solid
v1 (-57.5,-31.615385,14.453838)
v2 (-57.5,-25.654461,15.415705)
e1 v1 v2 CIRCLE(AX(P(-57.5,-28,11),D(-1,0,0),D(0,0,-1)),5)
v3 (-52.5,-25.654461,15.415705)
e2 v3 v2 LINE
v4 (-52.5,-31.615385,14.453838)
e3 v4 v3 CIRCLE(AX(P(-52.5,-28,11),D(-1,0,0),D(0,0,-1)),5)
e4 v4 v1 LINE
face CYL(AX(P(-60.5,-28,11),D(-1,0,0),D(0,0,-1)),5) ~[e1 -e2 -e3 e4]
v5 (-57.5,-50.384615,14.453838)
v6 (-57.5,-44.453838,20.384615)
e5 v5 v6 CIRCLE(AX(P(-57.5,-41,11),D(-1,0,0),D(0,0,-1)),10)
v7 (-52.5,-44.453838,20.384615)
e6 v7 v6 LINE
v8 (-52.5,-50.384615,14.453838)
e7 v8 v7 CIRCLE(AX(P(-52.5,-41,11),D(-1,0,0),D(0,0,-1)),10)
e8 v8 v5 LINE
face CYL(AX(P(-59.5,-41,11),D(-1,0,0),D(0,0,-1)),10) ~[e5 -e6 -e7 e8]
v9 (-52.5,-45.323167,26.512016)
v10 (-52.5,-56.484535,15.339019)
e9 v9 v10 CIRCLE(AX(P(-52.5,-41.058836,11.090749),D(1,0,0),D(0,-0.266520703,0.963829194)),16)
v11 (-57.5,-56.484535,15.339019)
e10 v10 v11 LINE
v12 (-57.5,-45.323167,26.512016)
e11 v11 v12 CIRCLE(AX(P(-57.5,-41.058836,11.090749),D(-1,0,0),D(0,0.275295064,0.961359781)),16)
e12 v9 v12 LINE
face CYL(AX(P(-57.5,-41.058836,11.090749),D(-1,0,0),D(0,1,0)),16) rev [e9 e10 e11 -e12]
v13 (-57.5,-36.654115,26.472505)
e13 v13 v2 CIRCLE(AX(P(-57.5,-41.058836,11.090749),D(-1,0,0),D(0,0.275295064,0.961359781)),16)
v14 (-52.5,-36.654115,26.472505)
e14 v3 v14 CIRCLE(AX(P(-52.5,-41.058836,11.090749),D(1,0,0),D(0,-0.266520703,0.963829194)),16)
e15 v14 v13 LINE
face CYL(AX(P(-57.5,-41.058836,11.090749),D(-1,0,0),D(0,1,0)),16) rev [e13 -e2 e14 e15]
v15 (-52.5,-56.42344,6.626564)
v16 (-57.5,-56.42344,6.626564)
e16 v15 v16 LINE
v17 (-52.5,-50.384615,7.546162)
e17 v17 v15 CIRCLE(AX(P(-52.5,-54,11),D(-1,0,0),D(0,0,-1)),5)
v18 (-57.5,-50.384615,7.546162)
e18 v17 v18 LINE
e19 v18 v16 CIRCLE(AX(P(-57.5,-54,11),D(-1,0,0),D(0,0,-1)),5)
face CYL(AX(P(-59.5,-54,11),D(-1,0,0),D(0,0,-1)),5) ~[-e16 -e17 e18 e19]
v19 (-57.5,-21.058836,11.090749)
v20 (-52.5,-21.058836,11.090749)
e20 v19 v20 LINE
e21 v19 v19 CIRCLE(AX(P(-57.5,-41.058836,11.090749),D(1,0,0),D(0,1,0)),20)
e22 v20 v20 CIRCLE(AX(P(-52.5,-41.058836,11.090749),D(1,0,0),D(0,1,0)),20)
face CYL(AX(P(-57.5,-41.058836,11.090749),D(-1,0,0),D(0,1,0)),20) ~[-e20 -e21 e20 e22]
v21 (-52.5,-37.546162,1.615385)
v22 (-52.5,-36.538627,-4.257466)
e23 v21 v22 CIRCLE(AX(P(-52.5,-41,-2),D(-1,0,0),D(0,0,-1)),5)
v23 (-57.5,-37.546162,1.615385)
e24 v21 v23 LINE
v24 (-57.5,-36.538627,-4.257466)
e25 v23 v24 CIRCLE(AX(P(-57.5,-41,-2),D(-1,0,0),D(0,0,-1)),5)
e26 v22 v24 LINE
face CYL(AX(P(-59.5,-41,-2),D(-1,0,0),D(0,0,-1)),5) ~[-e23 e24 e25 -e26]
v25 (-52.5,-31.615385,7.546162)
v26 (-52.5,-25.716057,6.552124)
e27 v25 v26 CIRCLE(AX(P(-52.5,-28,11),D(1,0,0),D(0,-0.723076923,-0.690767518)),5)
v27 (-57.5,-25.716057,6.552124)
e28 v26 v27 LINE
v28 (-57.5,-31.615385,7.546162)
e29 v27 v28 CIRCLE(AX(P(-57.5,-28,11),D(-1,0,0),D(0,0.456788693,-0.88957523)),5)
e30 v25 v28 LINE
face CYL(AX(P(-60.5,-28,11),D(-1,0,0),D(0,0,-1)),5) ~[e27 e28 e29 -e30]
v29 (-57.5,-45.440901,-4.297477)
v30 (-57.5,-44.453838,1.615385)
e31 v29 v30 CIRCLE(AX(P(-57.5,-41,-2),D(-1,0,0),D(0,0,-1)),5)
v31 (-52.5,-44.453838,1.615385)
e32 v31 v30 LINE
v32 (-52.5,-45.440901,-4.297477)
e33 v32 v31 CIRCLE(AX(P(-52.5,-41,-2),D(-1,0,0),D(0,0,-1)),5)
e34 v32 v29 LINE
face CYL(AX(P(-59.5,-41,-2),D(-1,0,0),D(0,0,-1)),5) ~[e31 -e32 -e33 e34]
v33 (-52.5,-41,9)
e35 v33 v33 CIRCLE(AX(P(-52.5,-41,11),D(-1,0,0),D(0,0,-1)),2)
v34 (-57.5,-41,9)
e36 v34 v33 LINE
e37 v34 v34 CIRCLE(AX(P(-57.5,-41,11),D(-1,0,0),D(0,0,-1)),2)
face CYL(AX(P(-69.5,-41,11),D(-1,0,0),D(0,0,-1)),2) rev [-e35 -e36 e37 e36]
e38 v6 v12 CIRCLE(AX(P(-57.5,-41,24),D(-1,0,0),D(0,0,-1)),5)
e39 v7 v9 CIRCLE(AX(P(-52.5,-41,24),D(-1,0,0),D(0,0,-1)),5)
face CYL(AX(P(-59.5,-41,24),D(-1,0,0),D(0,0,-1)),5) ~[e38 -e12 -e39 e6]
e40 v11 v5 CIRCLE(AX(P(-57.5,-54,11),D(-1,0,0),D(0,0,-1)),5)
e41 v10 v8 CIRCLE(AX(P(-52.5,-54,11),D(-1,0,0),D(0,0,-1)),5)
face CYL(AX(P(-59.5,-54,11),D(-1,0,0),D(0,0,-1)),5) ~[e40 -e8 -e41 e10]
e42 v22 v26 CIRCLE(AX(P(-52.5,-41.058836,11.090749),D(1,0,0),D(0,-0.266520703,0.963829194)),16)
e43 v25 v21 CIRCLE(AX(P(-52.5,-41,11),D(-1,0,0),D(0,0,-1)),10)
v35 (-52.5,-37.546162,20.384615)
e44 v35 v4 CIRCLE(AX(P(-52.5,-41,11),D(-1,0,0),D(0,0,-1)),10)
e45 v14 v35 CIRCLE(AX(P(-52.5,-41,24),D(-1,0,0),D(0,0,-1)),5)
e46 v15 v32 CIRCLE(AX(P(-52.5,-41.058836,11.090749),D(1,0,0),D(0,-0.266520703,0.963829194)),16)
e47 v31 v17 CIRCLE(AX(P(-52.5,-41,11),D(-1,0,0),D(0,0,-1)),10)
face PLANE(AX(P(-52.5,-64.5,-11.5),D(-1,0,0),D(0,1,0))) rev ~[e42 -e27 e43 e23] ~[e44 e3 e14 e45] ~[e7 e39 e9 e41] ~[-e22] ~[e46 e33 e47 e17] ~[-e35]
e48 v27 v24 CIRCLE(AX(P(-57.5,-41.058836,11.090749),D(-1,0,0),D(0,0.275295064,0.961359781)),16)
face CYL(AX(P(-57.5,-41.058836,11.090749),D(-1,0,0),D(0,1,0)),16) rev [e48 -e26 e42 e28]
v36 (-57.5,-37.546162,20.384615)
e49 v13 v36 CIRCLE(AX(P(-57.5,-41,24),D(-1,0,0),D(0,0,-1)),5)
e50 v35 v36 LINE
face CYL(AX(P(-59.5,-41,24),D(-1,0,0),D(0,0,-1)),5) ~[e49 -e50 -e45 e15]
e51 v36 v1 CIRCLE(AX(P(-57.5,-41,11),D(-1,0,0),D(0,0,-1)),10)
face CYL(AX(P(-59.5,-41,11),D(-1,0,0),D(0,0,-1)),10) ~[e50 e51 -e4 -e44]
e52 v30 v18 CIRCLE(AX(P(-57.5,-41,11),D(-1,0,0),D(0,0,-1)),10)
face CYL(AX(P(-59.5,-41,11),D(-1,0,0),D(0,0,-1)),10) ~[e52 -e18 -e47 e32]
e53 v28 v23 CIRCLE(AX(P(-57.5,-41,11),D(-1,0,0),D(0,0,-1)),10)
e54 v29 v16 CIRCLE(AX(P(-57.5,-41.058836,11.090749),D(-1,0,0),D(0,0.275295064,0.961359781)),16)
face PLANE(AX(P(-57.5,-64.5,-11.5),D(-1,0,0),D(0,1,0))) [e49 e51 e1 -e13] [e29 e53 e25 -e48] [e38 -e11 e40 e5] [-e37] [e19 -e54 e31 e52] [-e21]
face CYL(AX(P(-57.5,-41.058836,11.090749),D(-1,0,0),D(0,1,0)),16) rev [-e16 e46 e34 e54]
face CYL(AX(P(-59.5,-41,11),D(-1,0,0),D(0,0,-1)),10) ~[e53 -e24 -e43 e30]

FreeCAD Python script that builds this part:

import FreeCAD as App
import Part
import Sketcher


def add_polygon(sketch, points):
    """Adds a closed chain of lines whose ends are joined by coincident constraints."""
    first, n = sketch.GeometryCount, len(points)
    for a, b in zip(points, points[1:] + points[:1]):
        sketch.addGeometry(Part.LineSegment(App.Vector(*a, 0), App.Vector(*b, 0)), False)
    for i in range(n):
        sketch.addConstraint(Sketcher.Constraint("Coincident", first + i, 2, first + (i + 1) % n, 1))

doc = App.newDocument("Part")
body = doc.addObject("PartDesign::Body", "Body")

# Sketch on XY plane
sketch1 = body.newObject("Sketcher::SketchObject", "Sketch")
sketch1.AttachmentSupport = (doc.getObject("XY_Plane"), [""])
sketch1.MapMode = "FlatFace"
sketch1.AttachmentOffset = App.Placement(App.Vector(0, 0, -57), App.Rotation())
add_polygon(sketch1, [(-10, -9), (-10, -54), (0, -54), (0, -9)])  # lines 0-3
sketch1.addConstraint([
    Sketcher.Constraint("Vertical", 0),
    Sketcher.Constraint("Horizontal", 1),
    Sketcher.Constraint("Vertical", 2),
    Sketcher.Constraint("Horizontal", 3),
    Sketcher.Constraint("PointOnObject", 1, 2, -2),
    Sketcher.Constraint("DistanceX", 1, 1, 1, 2, 10.0),
    Sketcher.Constraint("DistanceY", 0, 2, 0, 1, 45.0),
    Sketcher.Constraint("DistanceY", 0, 2, -1, 1, 54.0),
])
pad1 = body.newObject("PartDesign::Pad", "Pad")
pad1.Profile = sketch1
pad1.Length = 45
body2 = doc.addObject("PartDesign::Body", "Body001")

# Sketch on XY plane
sketch2 = body2.newObject("Sketcher::SketchObject", "Sketch001")
sketch2.AttachmentSupport = (doc.getObject("XY_Plane001"), [""])
sketch2.MapMode = "FlatFace"
sketch2.AttachmentOffset = App.Placement(App.Vector(0, 0, -57), App.Rotation())
add_polygon(sketch2, [(5, -9), (5, -54), (15, -54), (15, -9)])  # lines 0-3
sketch2.addConstraint([
    Sketcher.Constraint("Vertical", 0),
    Sketcher.Constraint("Horizontal", 1),
    Sketcher.Constraint("Vertical", 2),
    Sketcher.Constraint("Horizontal", 3),
    Sketcher.Constraint("DistanceX", 1, 1, 1, 2, 10.0),
    Sketcher.Constraint("DistanceY", 0, 2, 0, 1, 45.0),
    Sketcher.Constraint("DistanceX", -1, 1, 0, 2, 5.0),
    Sketcher.Constraint("DistanceY", 0, 2, -1, 1, 54.0),
])
pad2 = body2.newObject("PartDesign::Pad", "Pad001")
pad2.Profile = sketch2
pad2.Length = 45
body3 = doc.addObject("PartDesign::Body", "Body002")

# Sketch on XY plane
sketch3 = body3.newObject("Sketcher::SketchObject", "Sketch002")
sketch3.AttachmentSupport = (doc.getObject("XY_Plane002"), [""])
sketch3.MapMode = "FlatFace"
sketch3.addGeometry(Part.Circle(App.Vector(0, 0, 0), App.Vector(0, 0, 1), 5), False)
sketch3.addConstraint([
    Sketcher.Constraint("Coincident", 0, 3, -1, 1),
    Sketcher.Constraint("Diameter", 0, 10.0),
])
pad3 = body3.newObject("PartDesign::Pad", "Pad002")
pad3.Profile = sketch3
pad3.Length = 10
body4 = doc.addObject("PartDesign::Body", "Body003")
doc.recompute()

body3.Placement = App.Placement(App.Vector(0, 0, 0), App.Rotation(App.Vector(0, 1, 0), 90))
boolean = body4.newObject("PartDesign::Boolean", "Boolean")
boolean.Type = "Fuse"
boolean.addObjects([body3])
body5 = doc.addObject("PartDesign::Body", "Body004")
doc.recompute()

body4.Placement = App.Placement(App.Vector(-2, -30.5, -21.5), App.Rotation(App.Vector(0, 0, 1), 0))
boolean2 = body5.newObject("PartDesign::Boolean", "Boolean001")
boolean2.Type = "Fuse"
boolean2.addObjects([body4])
body6 = doc.addObject("PartDesign::Body", "Body005")

# Sketch on YZ plane
sketch4 = body6.newObject("Sketcher::SketchObject", "Sketch003")
sketch4.AttachmentSupport = (doc.getObject("YZ_Plane005"), [""])
sketch4.MapMode = "FlatFace"
sketch4.addGeometry([
    Part.Circle(App.Vector(-30.558836, -34.409251, 0), App.Vector(0, 0, 1), 20),
    Part.Circle(App.Vector(-30.558836, -34.409251, 0), App.Vector(0, 0, 1), 16),
], False)
sketch4.addConstraint([
    Sketcher.Constraint("Coincident", 1, 3, 0, 3),
    Sketcher.Constraint("Diameter", 0, 40.0),
    Sketcher.Constraint("Diameter", 1, 32.0),
    Sketcher.Constraint("DistanceY", 0, 3, -1, 1, 34.409251),
    Sketcher.Constraint("DistanceX", 0, 3, -1, 1, 30.558836),
])
pad4 = body6.newObject("PartDesign::Pad", "Pad003")
pad4.Profile = sketch4
pad4.Length = 5
doc.recompute()

boolean3 = body6.newObject("PartDesign::Boolean", "Boolean002")
boolean3.Type = "Fuse"
boolean3.addObjects([body5])
body7 = doc.addObject("PartDesign::Body", "Body006")

# Sketch on XY plane
sketch5 = body7.newObject("Sketcher::SketchObject", "Sketch004")
sketch5.AttachmentSupport = (doc.getObject("XY_Plane006"), [""])
sketch5.MapMode = "FlatFace"
sketch5.addGeometry(Part.Circle(App.Vector(0, 0, 0), App.Vector(0, 0, 1), 5), False)
sketch5.addConstraint([
    Sketcher.Constraint("Coincident", 0, 3, -1, 1),
    Sketcher.Constraint("Diameter", 0, 10.0),
])
pad5 = body7.newObject("PartDesign::Pad", "Pad004")
pad5.Profile = sketch5
pad5.Length = 10
body8 = doc.addObject("PartDesign::Body", "Body007")
doc.recompute()

body7.Placement = App.Placement(App.Vector(0, 0, 0), App.Rotation(App.Vector(0, 1, 0), 90))
boolean4 = body8.newObject("PartDesign::Boolean", "Boolean003")
boolean4.Type = "Fuse"
boolean4.addObjects([body7])
body9 = doc.addObject("PartDesign::Body", "Body008")
doc.recompute()

body8.Placement = App.Placement(App.Vector(-2, -43.5, -34.5), App.Rotation(App.Vector(0, 0, 1), 0))
boolean5 = body9.newObject("PartDesign::Boolean", "Boolean004")
boolean5.Type = "Fuse"
boolean5.addObjects([body8])
doc.recompute()

boolean6 = body9.newObject("PartDesign::Boolean", "Boolean005")
boolean6.Type = "Fuse"
boolean6.addObjects([body6])
body10 = doc.addObject("PartDesign::Body", "Body009")

# Sketch on XY plane
sketch6 = body10.newObject("Sketcher::SketchObject", "Sketch005")
sketch6.AttachmentSupport = (doc.getObject("XY_Plane009"), [""])
sketch6.MapMode = "FlatFace"
sketch6.addGeometry(Part.Circle(App.Vector(0, 0, 0), App.Vector(0, 0, 1), 5), False)
sketch6.addConstraint([
    Sketcher.Constraint("Coincident", 0, 3, -1, 1),
    Sketcher.Constraint("Diameter", 0, 10.0),
])
pad6 = body10.newObject("PartDesign::Pad", "Pad005")
pad6.Profile = sketch6
pad6.Length = 10
body11 = doc.addObject("PartDesign::Body", "Body010")
doc.recompute()

body10.Placement = App.Placement(App.Vector(0, 0, 0), App.Rotation(App.Vector(0, 1, 0), 90))
boolean7 = body11.newObject("PartDesign::Boolean", "Boolean006")
boolean7.Type = "Fuse"
boolean7.addObjects([body10])
body12 = doc.addObject("PartDesign::Body", "Body011")
doc.recompute()

body11.Placement = App.Placement(App.Vector(-2, -30.5, -47.5), App.Rotation(App.Vector(0, 0, 1), 0))
boolean8 = body12.newObject("PartDesign::Boolean", "Boolean007")
boolean8.Type = "Fuse"
boolean8.addObjects([body11])
doc.recompute()

boolean9 = body12.newObject("PartDesign::Boolean", "Boolean008")
boolean9.Type = "Fuse"
boolean9.addObjects([body9])
body13 = doc.addObject("PartDesign::Body", "Body012")

# Sketch on XY plane
sketch7 = body13.newObject("Sketcher::SketchObject", "Sketch006")
sketch7.AttachmentSupport = (doc.getObject("XY_Plane012"), [""])
sketch7.MapMode = "FlatFace"
sketch7.addGeometry(Part.Circle(App.Vector(0, 0, 0), App.Vector(0, 0, 1), 5), False)
sketch7.addConstraint([
    Sketcher.Constraint("Coincident", 0, 3, -1, 1),
    Sketcher.Constraint("Diameter", 0, 10.0),
])
pad7 = body13.newObject("PartDesign::Pad", "Pad006")
pad7.Profile = sketch7
pad7.Length = 10
body14 = doc.addObject("PartDesign::Body", "Body013")
doc.recompute()

body13.Placement = App.Placement(App.Vector(0, 0, 0), App.Rotation(App.Vector(0, 1, 0), 90))
boolean10 = body14.newObject("PartDesign::Boolean", "Boolean009")
boolean10.Type = "Fuse"
boolean10.addObjects([body13])
body15 = doc.addObject("PartDesign::Body", "Body014")
doc.recompute()

body14.Placement = App.Placement(App.Vector(-3, -17.5, -34.5), App.Rotation(App.Vector(0, 0, 1), 0))
boolean11 = body15.newObject("PartDesign::Boolean", "Boolean010")
boolean11.Type = "Fuse"
boolean11.addObjects([body14])
doc.recompute()

boolean12 = body15.newObject("PartDesign::Boolean", "Boolean011")
boolean12.Type = "Fuse"
boolean12.addObjects([body12])
body16 = doc.addObject("PartDesign::Body", "Body015")

# Sketch on XY plane
sketch8 = body16.newObject("Sketcher::SketchObject", "Sketch007")
sketch8.AttachmentSupport = (doc.getObject("XY_Plane015"), [""])
sketch8.MapMode = "FlatFace"
sketch8.addGeometry(Part.Circle(App.Vector(0, 0, 0), App.Vector(0, 0, 1), 2), False)
sketch8.addConstraint([
    Sketcher.Constraint("Coincident", 0, 3, -1, 1),
    Sketcher.Constraint("Diameter", 0, 4.0),
])
pad8 = body16.newObject("PartDesign::Pad", "Pad007")
pad8.Profile = sketch8
pad8.Length = 30
body17 = doc.addObject("PartDesign::Body", "Body016")
doc.recompute()

body16.Placement = App.Placement(App.Vector(0, 0, 0), App.Rotation(App.Vector(0, 1, 0), 90))
boolean13 = body17.newObject("PartDesign::Boolean", "Boolean012")
boolean13.Type = "Fuse"
boolean13.addObjects([body16])
body18 = doc.addObject("PartDesign::Body", "Body017")
doc.recompute()

body17.Placement = App.Placement(App.Vector(-12, -30.5, -34.5), App.Rotation(App.Vector(0, 0, 1), 0))
boolean14 = body18.newObject("PartDesign::Boolean", "Boolean013")
boolean14.Type = "Fuse"
boolean14.addObjects([body17])
body19 = doc.addObject("PartDesign::Body", "Body018")

# Sketch on XY plane
sketch9 = body19.newObject("Sketcher::SketchObject", "Sketch008")
sketch9.AttachmentSupport = (doc.getObject("XY_Plane018"), [""])
sketch9.MapMode = "FlatFace"
sketch9.addGeometry(Part.Circle(App.Vector(0, 0, 0), App.Vector(0, 0, 1), 10), False)
sketch9.addConstraint([
    Sketcher.Constraint("Coincident", 0, 3, -1, 1),
    Sketcher.Constraint("Diameter", 0, 20.0),
])
pad9 = body19.newObject("PartDesign::Pad", "Pad008")
pad9.Profile = sketch9
pad9.Length = 10
body20 = doc.addObject("PartDesign::Body", "Body019")
doc.recompute()

body19.Placement = App.Placement(App.Vector(0, 0, 0), App.Rotation(App.Vector(0, 1, 0), 90))
boolean15 = body20.newObject("PartDesign::Boolean", "Boolean014")
boolean15.Type = "Fuse"
boolean15.addObjects([body19])
body21 = doc.addObject("PartDesign::Body", "Body020")
doc.recompute()

body20.Placement = App.Placement(App.Vector(-2, -30.5, -34.5), App.Rotation(App.Vector(0, 0, 1), 0))
boolean16 = body21.newObject("PartDesign::Boolean", "Boolean015")
boolean16.Type = "Fuse"
boolean16.addObjects([body20])
doc.recompute()

boolean17 = body21.newObject("PartDesign::Boolean", "Boolean016")
boolean17.Type = "Cut"
boolean17.addObjects([body18])
doc.recompute()

boolean18 = body21.newObject("PartDesign::Boolean", "Boolean017")
boolean18.Type = "Fuse"
boolean18.addObjects([body15])
doc.recompute()

boolean19 = body21.newObject("PartDesign::Boolean", "Boolean018")
boolean19.Type = "Cut"
boolean19.addObjects([body2])
doc.recompute()

boolean20 = body21.newObject("PartDesign::Boolean", "Boolean019")
boolean20.Type = "Cut"
boolean20.addObjects([body])
body22 = doc.addObject("PartDesign::Body", "Body021")
doc.recompute()

body21.Placement = App.Placement(App.Vector(-57.5, -10.5, 45.5), App.Rotation(App.Vector(0, 0, 1), 0))
boolean21 = body22.newObject("PartDesign::Boolean", "Boolean020")
boolean21.Type = "Fuse"
boolean21.addObjects([body21])

doc.recompute()
